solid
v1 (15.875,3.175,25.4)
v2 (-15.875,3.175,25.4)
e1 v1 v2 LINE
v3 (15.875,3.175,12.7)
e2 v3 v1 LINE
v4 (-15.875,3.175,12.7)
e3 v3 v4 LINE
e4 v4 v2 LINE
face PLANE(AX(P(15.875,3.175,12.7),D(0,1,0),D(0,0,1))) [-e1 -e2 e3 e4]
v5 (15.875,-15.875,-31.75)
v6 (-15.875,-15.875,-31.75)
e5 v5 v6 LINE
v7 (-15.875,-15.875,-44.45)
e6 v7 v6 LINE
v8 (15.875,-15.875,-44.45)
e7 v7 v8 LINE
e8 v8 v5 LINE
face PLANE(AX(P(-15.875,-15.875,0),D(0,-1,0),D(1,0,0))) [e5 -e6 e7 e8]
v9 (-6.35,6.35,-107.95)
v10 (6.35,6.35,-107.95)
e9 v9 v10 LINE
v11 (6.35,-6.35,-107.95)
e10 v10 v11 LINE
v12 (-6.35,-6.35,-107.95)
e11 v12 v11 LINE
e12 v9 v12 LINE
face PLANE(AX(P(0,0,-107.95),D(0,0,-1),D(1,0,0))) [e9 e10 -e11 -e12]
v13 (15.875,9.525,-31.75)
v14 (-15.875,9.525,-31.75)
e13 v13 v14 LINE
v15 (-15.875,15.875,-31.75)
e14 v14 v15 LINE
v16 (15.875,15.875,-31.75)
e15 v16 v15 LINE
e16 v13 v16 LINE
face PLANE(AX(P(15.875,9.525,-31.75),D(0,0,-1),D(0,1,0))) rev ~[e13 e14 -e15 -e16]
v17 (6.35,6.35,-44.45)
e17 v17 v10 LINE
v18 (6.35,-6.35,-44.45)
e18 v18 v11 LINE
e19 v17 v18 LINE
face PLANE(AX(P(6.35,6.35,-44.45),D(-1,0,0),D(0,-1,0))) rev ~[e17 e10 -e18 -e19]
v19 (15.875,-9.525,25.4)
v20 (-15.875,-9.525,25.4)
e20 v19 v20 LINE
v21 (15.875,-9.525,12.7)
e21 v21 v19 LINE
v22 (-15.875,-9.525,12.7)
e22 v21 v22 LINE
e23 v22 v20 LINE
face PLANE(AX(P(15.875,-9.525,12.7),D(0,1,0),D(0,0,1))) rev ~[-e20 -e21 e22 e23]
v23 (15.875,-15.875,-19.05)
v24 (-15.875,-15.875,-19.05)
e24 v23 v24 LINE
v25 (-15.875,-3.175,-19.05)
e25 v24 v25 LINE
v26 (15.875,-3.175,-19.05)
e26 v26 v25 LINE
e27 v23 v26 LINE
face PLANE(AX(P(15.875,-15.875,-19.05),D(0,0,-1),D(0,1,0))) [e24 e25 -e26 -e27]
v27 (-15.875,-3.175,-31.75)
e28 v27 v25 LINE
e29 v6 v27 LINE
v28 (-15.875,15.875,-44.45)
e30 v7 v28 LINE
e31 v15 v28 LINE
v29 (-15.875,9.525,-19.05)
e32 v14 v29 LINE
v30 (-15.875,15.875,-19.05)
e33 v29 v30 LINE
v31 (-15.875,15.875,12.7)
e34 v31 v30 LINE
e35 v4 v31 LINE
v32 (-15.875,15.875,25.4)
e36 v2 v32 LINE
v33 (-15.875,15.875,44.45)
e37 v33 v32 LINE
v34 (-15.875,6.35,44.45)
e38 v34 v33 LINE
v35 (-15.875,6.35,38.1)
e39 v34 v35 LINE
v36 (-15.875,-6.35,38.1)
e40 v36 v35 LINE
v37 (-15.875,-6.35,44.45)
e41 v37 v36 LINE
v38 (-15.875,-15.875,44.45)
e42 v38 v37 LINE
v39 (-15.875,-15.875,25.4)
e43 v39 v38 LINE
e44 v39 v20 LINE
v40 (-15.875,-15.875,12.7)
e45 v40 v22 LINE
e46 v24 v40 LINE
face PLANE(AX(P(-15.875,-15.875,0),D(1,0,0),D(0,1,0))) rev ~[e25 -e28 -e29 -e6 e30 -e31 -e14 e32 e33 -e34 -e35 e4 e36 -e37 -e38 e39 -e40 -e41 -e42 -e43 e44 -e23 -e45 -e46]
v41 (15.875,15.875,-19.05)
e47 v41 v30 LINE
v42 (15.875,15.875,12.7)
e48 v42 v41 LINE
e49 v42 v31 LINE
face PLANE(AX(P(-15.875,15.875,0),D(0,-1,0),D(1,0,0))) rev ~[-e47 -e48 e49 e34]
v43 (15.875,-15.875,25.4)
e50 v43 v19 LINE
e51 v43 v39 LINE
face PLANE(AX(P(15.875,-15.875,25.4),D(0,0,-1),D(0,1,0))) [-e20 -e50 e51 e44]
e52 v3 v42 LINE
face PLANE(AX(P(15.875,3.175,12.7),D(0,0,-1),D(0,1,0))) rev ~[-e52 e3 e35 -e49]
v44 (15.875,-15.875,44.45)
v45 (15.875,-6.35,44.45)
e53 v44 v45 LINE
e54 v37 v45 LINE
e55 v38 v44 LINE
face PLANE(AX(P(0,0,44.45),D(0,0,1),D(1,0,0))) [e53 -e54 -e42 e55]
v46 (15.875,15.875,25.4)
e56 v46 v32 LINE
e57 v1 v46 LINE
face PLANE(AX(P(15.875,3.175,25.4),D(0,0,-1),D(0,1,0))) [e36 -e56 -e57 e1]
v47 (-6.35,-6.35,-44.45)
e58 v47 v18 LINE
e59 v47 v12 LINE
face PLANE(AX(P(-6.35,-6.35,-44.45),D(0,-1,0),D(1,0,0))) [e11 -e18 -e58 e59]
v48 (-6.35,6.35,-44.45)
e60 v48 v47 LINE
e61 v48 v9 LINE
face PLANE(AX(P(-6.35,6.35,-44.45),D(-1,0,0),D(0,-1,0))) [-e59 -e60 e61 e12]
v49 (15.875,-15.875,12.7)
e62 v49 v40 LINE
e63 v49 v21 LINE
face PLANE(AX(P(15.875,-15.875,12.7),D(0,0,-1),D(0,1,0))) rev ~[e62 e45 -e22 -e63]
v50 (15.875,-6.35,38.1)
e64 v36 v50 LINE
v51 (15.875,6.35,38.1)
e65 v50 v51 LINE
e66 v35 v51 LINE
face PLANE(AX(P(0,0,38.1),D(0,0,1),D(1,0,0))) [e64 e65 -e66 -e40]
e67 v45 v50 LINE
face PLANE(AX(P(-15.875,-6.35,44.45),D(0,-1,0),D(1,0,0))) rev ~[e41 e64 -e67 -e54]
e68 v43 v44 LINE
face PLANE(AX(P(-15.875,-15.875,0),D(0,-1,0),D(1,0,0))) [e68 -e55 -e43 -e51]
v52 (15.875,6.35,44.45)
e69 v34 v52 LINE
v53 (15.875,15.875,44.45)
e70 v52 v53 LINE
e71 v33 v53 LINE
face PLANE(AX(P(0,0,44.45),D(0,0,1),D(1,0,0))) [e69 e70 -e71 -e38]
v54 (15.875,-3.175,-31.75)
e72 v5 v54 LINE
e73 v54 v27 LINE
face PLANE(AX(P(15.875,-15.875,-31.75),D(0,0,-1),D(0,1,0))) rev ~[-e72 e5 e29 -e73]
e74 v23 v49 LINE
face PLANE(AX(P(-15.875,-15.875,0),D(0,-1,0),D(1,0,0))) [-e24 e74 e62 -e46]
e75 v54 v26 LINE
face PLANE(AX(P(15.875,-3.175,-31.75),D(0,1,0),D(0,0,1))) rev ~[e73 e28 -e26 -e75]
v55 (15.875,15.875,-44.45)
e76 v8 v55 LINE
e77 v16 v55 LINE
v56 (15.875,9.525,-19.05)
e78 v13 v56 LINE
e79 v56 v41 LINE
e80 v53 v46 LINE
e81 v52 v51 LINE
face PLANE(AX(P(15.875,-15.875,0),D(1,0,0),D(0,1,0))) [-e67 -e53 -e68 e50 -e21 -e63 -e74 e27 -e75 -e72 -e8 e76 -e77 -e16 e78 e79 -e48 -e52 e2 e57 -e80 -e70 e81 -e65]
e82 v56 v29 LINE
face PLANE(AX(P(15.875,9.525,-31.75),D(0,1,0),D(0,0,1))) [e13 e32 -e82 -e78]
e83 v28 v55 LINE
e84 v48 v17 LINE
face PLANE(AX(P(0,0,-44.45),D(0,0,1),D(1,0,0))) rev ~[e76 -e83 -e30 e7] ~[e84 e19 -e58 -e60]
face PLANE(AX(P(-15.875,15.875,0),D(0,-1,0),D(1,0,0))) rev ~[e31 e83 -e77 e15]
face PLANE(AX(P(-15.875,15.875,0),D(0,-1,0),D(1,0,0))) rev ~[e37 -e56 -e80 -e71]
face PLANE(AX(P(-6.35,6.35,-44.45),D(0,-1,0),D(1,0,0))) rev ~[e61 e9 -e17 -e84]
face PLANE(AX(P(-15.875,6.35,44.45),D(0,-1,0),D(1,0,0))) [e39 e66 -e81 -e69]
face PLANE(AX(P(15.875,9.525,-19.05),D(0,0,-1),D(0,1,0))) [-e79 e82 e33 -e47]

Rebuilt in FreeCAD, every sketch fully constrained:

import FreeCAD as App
import Part
import Sketcher

V = App.Vector
Q = App.Units.Quantity

doc = App.newDocument("Part")
body = doc.addObject("PartDesign::Body", "Body")

sketch1 = body.newObject("Sketcher::SketchObject", "Sketch")
sketch1.AttachmentSupport = (doc.getObject("XY_Plane"), [""])
sketch1.MapMode = "FlatFace"
sketch1.addGeometry(Part.LineSegment(V(-16, 16, 0), V(-16, -16, 0)), False)
sketch1.addGeometry(Part.LineSegment(V(-16, -16, 0), V(16, -16, 0)), False)
sketch1.addGeometry(Part.LineSegment(V(16, -16, 0), V(16, 16, 0)), False)
sketch1.addGeometry(Part.LineSegment(V(16, 16, 0), V(-16, 16, 0)), False)
sketch1.addConstraint(Sketcher.Constraint("Coincident", 0, 2, 1, 1))
sketch1.addConstraint(Sketcher.Constraint("Coincident", 1, 2, 2, 1))
sketch1.addConstraint(Sketcher.Constraint("Coincident", 2, 2, 3, 1))
sketch1.addConstraint(Sketcher.Constraint("Coincident", 3, 2, 0, 1))
sketch1.addConstraint(Sketcher.Constraint("Vertical", 0))
sketch1.addConstraint(Sketcher.Constraint("Horizontal", 1))
sketch1.addConstraint(Sketcher.Constraint("Vertical", 2))
sketch1.addConstraint(Sketcher.Constraint("Horizontal", 3))
sketch1.addConstraint(Sketcher.Constraint("Symmetric", 0, 2, 2, 2, -1, 1))
sketch1.addConstraint(Sketcher.Constraint("Equal", 3, 0))
sketch1.addConstraint(Sketcher.Constraint("DistanceX", 1, 1, 1, 2, Q("1.25 in")))
pad1 = body.newObject("PartDesign::Pad", "Pad")
pad1.Profile = sketch1
pad1.Length = Q("3.5 in")
pad1.Midplane = True

sketch2 = body.newObject("Sketcher::SketchObject", "Sketch001")
sketch2.AttachmentSupport = (doc.getObject("XY_Plane"), [""])
sketch2.MapMode = "FlatFace"
sketch2.AttachmentOffset = App.Placement(V(0, 0, -1.75 * 25.4), App.Rotation())
sketch2.addGeometry(Part.LineSegment(V(-6, -6, 0), V(-6, 6, 0)), False)
sketch2.addGeometry(Part.LineSegment(V(-6, 6, 0), V(6, 6, 0)), False)
sketch2.addGeometry(Part.LineSegment(V(6, 6, 0), V(6, -6, 0)), False)
sketch2.addGeometry(Part.LineSegment(V(6, -6, 0), V(-6, -6, 0)), False)
sketch2.addConstraint(Sketcher.Constraint("Coincident", 0, 2, 1, 1))
sketch2.addConstraint(Sketcher.Constraint("Coincident", 1, 2, 2, 1))
sketch2.addConstraint(Sketcher.Constraint("Coincident", 2, 2, 3, 1))
sketch2.addConstraint(Sketcher.Constraint("Coincident", 3, 2, 0, 1))
sketch2.addConstraint(Sketcher.Constraint("Vertical", 0))
sketch2.addConstraint(Sketcher.Constraint("Horizontal", 1))
sketch2.addConstraint(Sketcher.Constraint("Vertical", 2))
sketch2.addConstraint(Sketcher.Constraint("Horizontal", 3))
sketch2.addConstraint(Sketcher.Constraint("Symmetric", 0, 2, 2, 2, -1, 1))
sketch2.addConstraint(Sketcher.Constraint("Equal", 3, 0))
sketch2.addConstraint(Sketcher.Constraint("DistanceX", 1, 1, 1, 2, Q("0.5 in")))
pad2 = body.newObject("PartDesign::Pad", "Pad001")
pad2.Profile = sketch2
pad2.Length = Q("2.5 in")
pad2.Reversed = True

sketch3 = body.newObject("Sketcher::SketchObject", "Sketch002")
sketch3.AttachmentSupport = (doc.getObject("XY_Plane"), [""])
sketch3.MapMode = "FlatFace"
sketch3.AttachmentOffset = App.Placement(V(0, 0, 1.75 * 25.4), App.Rotation())
sketch3.addGeometry(Part.LineSegment(V(-16, 6, 0), V(-16, -6, 0)), False)
sketch3.addGeometry(Part.LineSegment(V(-16, -6, 0), V(16, -6, 0)), False)
sketch3.addGeometry(Part.LineSegment(V(16, -6, 0), V(16, 6, 0)), False)
sketch3.addGeometry(Part.LineSegment(V(16, 6, 0), V(-16, 6, 0)), False)
sketch3.addConstraint(Sketcher.Constraint("Coincident", 0, 2, 1, 1))
sketch3.addConstraint(Sketcher.Constraint("Coincident", 1, 2, 2, 1))
sketch3.addConstraint(Sketcher.Constraint("Coincident", 2, 2, 3, 1))
sketch3.addConstraint(Sketcher.Constraint("Coincident", 3, 2, 0, 1))
sketch3.addConstraint(Sketcher.Constraint("Vertical", 0))
sketch3.addConstraint(Sketcher.Constraint("Horizontal", 1))
sketch3.addConstraint(Sketcher.Constraint("Vertical", 2))
sketch3.addConstraint(Sketcher.Constraint("Horizontal", 3))
sketch3.addConstraint(Sketcher.Constraint("Symmetric", 0, 2, 2, 2, -1, 1))
sketch3.addConstraint(Sketcher.Constraint("DistanceY", 0, 2, 0, 1, Q("0.5 in")))
sketch3.addConstraint(Sketcher.Constraint("DistanceX", 1, 1, 1, 2, Q("1.25 in")))
pocket1 = body.newObject("PartDesign::Pocket", "Pocket")
pocket1.Profile = sketch3
pocket1.Length = Q("0.25 in")

sketch4 = body.newObject("Sketcher::SketchObject", "Sketch003")
sketch4.AttachmentSupport = (doc.getObject("YZ_Plane"), [""])
sketch4.MapMode = "FlatFace"
sketch4.AttachmentOffset = App.Placement(V(0, 0, 0.625 * 25.4), App.Rotation())
sketch4.addGeometry(Part.LineSegment(V(3, 25, 0), V(3, 13, 0)), False)
sketch4.addGeometry(Part.LineSegment(V(3, 13, 0), V(16, 13, 0)), False)
sketch4.addGeometry(Part.LineSegment(V(16, 13, 0), V(16, 25, 0)), False)
sketch4.addGeometry(Part.LineSegment(V(16, 25, 0), V(3, 25, 0)), False)
sketch4.addGeometry(Part.LineSegment(V(10, -19, 0), V(10, -32, 0)), False)
sketch4.addGeometry(Part.LineSegment(V(10, -32, 0), V(16, -32, 0)), False)
sketch4.addGeometry(Part.LineSegment(V(16, -32, 0), V(16, -19, 0)), False)
sketch4.addGeometry(Part.LineSegment(V(16, -19, 0), V(10, -19, 0)), False)
sketch4.addGeometry(Part.LineSegment(V(-16, -19, 0), V(-16, -32, 0)), False)
sketch4.addGeometry(Part.LineSegment(V(-16, -32, 0), V(-3, -32, 0)), False)
sketch4.addGeometry(Part.LineSegment(V(-3, -32, 0), V(-3, -19, 0)), False)
sketch4.addGeometry(Part.LineSegment(V(-3, -19, 0), V(-16, -19, 0)), False)
sketch4.addGeometry(Part.LineSegment(V(-16, 25, 0), V(-16, 13, 0)), False)
sketch4.addGeometry(Part.LineSegment(V(-16, 13, 0), V(-10, 13, 0)), False)
sketch4.addGeometry(Part.LineSegment(V(-10, 13, 0), V(-10, 25, 0)), False)
sketch4.addGeometry(Part.LineSegment(V(-10, 25, 0), V(-16, 25, 0)), False)
sketch4.addConstraint(Sketcher.Constraint("Coincident", 0, 2, 1, 1))
sketch4.addConstraint(Sketcher.Constraint("Coincident", 1, 2, 2, 1))
sketch4.addConstraint(Sketcher.Constraint("Coincident", 2, 2, 3, 1))
sketch4.addConstraint(Sketcher.Constraint("Coincident", 3, 2, 0, 1))
sketch4.addConstraint(Sketcher.Constraint("Coincident", 4, 2, 5, 1))
sketch4.addConstraint(Sketcher.Constraint("Coincident", 5, 2, 6, 1))
sketch4.addConstraint(Sketcher.Constraint("Coincident", 6, 2, 7, 1))
sketch4.addConstraint(Sketcher.Constraint("Coincident", 7, 2, 4, 1))
sketch4.addConstraint(Sketcher.Constraint("Coincident", 8, 2, 9, 1))
sketch4.addConstraint(Sketcher.Constraint("Coincident", 9, 2, 10, 1))
sketch4.addConstraint(Sketcher.Constraint("Coincident", 10, 2, 11, 1))
sketch4.addConstraint(Sketcher.Constraint("Coincident", 11, 2, 8, 1))
sketch4.addConstraint(Sketcher.Constraint("Coincident", 12, 2, 13, 1))
sketch4.addConstraint(Sketcher.Constraint("Coincident", 13, 2, 14, 1))
sketch4.addConstraint(Sketcher.Constraint("Coincident", 14, 2, 15, 1))
sketch4.addConstraint(Sketcher.Constraint("Coincident", 15, 2, 12, 1))
sketch4.addConstraint(Sketcher.Constraint("Vertical", 0))
sketch4.addConstraint(Sketcher.Constraint("Horizontal", 1))
sketch4.addConstraint(Sketcher.Constraint("Vertical", 2))
sketch4.addConstraint(Sketcher.Constraint("Horizontal", 3))
sketch4.addConstraint(Sketcher.Constraint("Vertical", 4))
sketch4.addConstraint(Sketcher.Constraint("Horizontal", 5))
sketch4.addConstraint(Sketcher.Constraint("Vertical", 6))
sketch4.addConstraint(Sketcher.Constraint("Horizontal", 7))
sketch4.addConstraint(Sketcher.Constraint("Vertical", 8))
sketch4.addConstraint(Sketcher.Constraint("Horizontal", 9))
sketch4.addConstraint(Sketcher.Constraint("Vertical", 10))
sketch4.addConstraint(Sketcher.Constraint("Horizontal", 11))
sketch4.addConstraint(Sketcher.Constraint("Vertical", 12))
sketch4.addConstraint(Sketcher.Constraint("Horizontal", 13))
sketch4.addConstraint(Sketcher.Constraint("Vertical", 14))
sketch4.addConstraint(Sketcher.Constraint("Horizontal", 15))
sketch4.addConstraint(Sketcher.Constraint("Symmetric", 5, 2, 8, 2, -2))
sketch4.addConstraint(Sketcher.Constraint("Symmetric", 1, 2, 12, 2, -2))
sketch4.addConstraint(Sketcher.Constraint("Horizontal", 7, 2, 10, 2))
sketch4.addConstraint(Sketcher.Constraint("Horizontal", 3, 2, 14, 2))
sketch4.addConstraint(Sketcher.Constraint("Vertical", 2, 2, 5, 2))
sketch4.addConstraint(Sketcher.Constraint("Equal", 3, 9))
sketch4.addConstraint(Sketcher.Constraint("Equal", 7, 13))
sketch4.addConstraint(Sketcher.Constraint("Equal", 11, 0))
sketch4.addConstraint(Sketcher.Constraint("Equal", 2, 4))
sketch4.addConstraint(Sketcher.Constraint("DistanceX", 1, 1, 1, 2, Q("0.5 in")))
sketch4.addConstraint(Sketcher.Constraint("DistanceY", -1, 1, 2, 2, Q("1 in")))
sketch4.addConstraint(Sketcher.Constraint("DistanceX", 8, 2, 4, 2, Q("1 in")))
sketch4.addConstraint(Sketcher.Constraint("DistanceX", 5, 1, 5, 2, Q("0.25 in")))
sketch4.addConstraint(Sketcher.Constraint("DistanceY", 4, 2, -1, 1, Q("1.25 in")))
pocket2 = body.newObject("PartDesign::Pocket", "Pocket001")
pocket2.Profile = sketch4
pocket2.Type = "ThroughAll"

doc.recompute()
